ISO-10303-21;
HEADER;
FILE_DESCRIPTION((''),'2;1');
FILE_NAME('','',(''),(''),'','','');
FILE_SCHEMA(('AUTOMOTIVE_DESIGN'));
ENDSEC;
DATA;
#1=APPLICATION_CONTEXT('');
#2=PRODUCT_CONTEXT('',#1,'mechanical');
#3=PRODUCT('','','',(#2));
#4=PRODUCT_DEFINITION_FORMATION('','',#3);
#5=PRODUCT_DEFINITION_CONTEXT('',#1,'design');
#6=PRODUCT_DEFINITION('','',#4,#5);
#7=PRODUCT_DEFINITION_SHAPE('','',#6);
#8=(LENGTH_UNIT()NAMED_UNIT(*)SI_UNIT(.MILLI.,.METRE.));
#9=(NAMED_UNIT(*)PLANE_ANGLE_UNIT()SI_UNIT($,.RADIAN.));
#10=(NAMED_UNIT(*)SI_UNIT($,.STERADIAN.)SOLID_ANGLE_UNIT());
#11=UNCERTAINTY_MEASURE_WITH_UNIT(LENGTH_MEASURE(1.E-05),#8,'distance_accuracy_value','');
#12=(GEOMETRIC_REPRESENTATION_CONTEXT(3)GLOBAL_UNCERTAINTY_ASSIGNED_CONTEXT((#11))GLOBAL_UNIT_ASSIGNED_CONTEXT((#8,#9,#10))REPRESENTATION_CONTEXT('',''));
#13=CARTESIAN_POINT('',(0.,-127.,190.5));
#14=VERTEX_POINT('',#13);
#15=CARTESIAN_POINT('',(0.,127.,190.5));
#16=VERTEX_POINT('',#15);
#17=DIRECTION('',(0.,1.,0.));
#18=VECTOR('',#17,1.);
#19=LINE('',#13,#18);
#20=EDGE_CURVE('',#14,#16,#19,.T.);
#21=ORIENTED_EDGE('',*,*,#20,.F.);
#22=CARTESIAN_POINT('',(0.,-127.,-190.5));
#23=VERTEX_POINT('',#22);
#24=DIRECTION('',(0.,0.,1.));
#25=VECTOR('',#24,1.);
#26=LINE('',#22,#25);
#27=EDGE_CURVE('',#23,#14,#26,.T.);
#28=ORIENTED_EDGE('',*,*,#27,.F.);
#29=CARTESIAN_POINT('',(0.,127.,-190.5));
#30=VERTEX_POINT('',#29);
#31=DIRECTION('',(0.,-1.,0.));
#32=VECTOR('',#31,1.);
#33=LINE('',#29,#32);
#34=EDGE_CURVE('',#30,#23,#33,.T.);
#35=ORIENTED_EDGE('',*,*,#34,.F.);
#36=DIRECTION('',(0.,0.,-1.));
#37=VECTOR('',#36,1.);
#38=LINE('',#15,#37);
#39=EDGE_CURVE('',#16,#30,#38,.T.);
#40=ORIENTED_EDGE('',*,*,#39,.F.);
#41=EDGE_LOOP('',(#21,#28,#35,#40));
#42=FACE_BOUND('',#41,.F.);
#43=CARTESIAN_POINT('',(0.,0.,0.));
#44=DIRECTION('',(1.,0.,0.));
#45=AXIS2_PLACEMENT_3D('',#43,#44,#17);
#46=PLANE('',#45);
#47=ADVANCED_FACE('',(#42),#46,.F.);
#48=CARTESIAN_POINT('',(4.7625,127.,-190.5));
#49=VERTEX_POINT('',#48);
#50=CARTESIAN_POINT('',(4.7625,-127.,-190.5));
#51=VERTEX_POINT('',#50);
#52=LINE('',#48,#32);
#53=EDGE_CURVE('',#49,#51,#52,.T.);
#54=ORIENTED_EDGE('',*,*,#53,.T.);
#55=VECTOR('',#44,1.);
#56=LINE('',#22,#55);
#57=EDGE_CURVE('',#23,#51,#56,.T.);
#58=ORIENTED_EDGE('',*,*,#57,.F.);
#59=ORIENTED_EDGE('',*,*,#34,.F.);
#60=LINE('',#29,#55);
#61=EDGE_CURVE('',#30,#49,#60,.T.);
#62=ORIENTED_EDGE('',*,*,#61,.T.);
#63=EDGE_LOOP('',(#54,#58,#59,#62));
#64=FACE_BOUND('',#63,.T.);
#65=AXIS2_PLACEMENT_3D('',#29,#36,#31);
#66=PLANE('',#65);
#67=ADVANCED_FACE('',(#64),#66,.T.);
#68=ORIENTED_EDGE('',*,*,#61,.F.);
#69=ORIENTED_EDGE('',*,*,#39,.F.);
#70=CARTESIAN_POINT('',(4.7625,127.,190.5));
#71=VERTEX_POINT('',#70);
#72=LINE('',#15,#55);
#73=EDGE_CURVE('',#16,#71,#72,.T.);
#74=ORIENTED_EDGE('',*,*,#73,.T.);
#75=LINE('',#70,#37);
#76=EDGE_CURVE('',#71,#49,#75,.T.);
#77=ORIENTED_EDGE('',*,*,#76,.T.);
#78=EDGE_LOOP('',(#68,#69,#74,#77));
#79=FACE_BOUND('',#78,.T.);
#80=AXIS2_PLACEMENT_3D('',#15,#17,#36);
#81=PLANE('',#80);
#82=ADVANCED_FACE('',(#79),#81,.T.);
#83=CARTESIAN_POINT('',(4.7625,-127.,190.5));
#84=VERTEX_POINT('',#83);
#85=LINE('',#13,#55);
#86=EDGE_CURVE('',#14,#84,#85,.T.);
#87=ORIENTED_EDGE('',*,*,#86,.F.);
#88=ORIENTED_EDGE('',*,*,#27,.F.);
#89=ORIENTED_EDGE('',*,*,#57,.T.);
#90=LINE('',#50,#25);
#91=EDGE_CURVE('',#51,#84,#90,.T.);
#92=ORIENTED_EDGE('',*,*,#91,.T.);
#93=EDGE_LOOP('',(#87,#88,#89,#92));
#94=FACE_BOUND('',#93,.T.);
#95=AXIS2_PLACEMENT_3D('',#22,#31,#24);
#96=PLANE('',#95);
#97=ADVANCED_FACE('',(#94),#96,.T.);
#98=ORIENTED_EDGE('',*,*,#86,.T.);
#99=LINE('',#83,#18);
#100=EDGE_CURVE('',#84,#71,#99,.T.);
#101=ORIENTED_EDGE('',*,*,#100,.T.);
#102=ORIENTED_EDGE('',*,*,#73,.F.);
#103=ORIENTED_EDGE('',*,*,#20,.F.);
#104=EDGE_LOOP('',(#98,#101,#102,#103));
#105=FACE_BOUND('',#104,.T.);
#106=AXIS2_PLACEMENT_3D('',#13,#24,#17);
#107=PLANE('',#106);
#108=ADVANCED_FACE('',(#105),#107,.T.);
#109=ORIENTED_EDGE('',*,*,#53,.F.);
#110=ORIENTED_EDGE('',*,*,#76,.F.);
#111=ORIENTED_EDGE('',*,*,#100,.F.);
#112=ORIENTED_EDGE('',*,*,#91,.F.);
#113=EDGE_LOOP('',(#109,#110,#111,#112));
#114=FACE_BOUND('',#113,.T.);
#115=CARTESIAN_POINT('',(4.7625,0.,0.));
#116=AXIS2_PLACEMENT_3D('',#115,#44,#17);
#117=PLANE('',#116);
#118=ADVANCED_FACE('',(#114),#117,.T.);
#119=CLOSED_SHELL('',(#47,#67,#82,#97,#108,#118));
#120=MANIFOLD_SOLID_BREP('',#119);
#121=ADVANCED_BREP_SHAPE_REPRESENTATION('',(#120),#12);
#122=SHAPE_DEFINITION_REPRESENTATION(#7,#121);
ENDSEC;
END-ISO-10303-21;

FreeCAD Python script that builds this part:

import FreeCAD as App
import Part
import Sketcher

V = App.Vector
Q = App.Units.Quantity


def add_polygon(sketch, points):
    """Adds a closed chain of lines whose ends are joined by coincident constraints."""
    first, n = sketch.GeometryCount, len(points)
    for a, b in zip(points, points[1:] + points[:1]):
        sketch.addGeometry(Part.LineSegment(App.Vector(*a, 0), App.Vector(*b, 0)), False)
    for i in range(n):
        sketch.addConstraint(Sketcher.Constraint("Coincident", first + i, 2, first + (i + 1) % n, 1))

doc = App.newDocument("Part")
body = doc.addObject("PartDesign::Body", "Body")

# Sketch on YZ plane
sketch1 = body.newObject("Sketcher::SketchObject", "Sketch")
sketch1.AttachmentSupport = (doc.getObject("YZ_Plane"), [""])
sketch1.MapMode = "FlatFace"
add_polygon(sketch1, [(127, 190), (-127, 190), (-127, -190), (127, -190)])  # lines 0-3
sketch1.addConstraint([
    Sketcher.Constraint("Horizontal", 0),
    Sketcher.Constraint("Vertical", 1),
    Sketcher.Constraint("Horizontal", 2),
    Sketcher.Constraint("Vertical", 3),
    Sketcher.Constraint("Symmetric", 0, 2, 2, 2, -1, 1),
    Sketcher.Constraint("DistanceX", 0, 2, 0, 1, Q("10 in")),
    Sketcher.Constraint("DistanceY", 1, 2, 1, 1, Q("15 in")),
])
pad1 = body.newObject("PartDesign::Pad", "Pad")
pad1.Profile = sketch1
pad1.Length = Q("0.1875 in")

doc.recompute()
